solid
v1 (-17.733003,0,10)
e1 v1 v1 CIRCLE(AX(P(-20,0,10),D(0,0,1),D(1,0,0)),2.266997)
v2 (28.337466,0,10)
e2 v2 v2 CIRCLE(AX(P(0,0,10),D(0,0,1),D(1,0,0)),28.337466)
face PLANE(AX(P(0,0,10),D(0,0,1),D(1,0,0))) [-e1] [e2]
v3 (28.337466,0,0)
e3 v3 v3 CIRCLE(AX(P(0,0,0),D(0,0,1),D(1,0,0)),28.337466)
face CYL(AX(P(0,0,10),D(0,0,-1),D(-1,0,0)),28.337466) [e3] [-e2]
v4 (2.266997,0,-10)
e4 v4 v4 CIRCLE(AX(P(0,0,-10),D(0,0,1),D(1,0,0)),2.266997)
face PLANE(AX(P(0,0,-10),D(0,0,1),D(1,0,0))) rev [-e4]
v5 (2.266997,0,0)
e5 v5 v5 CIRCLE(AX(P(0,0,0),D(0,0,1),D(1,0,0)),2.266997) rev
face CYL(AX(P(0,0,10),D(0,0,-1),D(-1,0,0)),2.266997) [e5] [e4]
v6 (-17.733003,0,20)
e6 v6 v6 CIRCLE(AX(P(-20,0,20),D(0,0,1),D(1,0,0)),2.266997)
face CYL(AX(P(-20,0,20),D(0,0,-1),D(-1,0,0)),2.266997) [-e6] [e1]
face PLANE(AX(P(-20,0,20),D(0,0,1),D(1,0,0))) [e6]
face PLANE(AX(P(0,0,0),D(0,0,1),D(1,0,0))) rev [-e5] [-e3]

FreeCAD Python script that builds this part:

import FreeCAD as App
import Part
import Sketcher
from FreeCAD import Vector
Q = App.Units.Quantity

doc = App.newDocument("Part")
body = doc.addObject("PartDesign::Body", "Body")

sketch1 = doc.addObject("Sketcher::SketchObject", "Sketch")
body.addObject(sketch1)
sketch1.AttachmentSupport = (doc.XY_Plane, [""])
sketch1.MapMode = "FlatFace"
sketch1.addGeometry([
    Part.Circle(Vector(0, 0, 0), Vector(0, 0, 1), 28.3),
    Part.Circle(Vector(-20, 0, 0), Vector(0, 0, 1), 2.3),
    Part.Circle(Vector(0, 0, 0), Vector(0, 0, 1), 2.3),
], False)
sketch1.addConstraint([
    Sketcher.Constraint("Coincident", 0, 3, -1, 1),
    Sketcher.Constraint("Coincident", 2, 3, -1, 1),
    Sketcher.Constraint("Equal", 1, 2),
    Sketcher.Constraint("PointOnObject", 1, 3, -1),
    Sketcher.Constraint("DistanceX", 1, 3, -1, 1, Q("20 mm")),
    Sketcher.Constraint("Diameter", 0, Q("56.674932 mm")),
    Sketcher.Constraint("Diameter", 1, Q("4.533995 mm")),
])
pad1 = doc.addObject("PartDesign::Pad", "Pad")
body.addObject(pad1)
pad1.Profile = sketch1
pad1.Length = 10

sketch2 = doc.addObject("Sketcher::SketchObject", "Sketch001")
body.addObject(sketch2)
sketch2.AttachmentSupport = (doc.XY_Plane, [""])
sketch2.MapMode = "FlatFace"
sketch2.addGeometry(Part.Circle(Vector(0, 0, 0), Vector(0, 0, 1), 2.3), False)
sketch2.addConstraint([
    Sketcher.Constraint("Coincident", 0, 3, -1, 1),
    Sketcher.Constraint("Diameter", 0, Q("4.533995 mm")),
])
pad2 = doc.addObject("PartDesign::Pad", "Pad001")
body.addObject(pad2)
pad2.Profile = sketch2
pad2.Length = 20
pad2.Midplane = True

sketch3 = doc.addObject("Sketcher::SketchObject", "Sketch002")
body.addObject(sketch3)
sketch3.AttachmentSupport = (doc.XY_Plane, [""])
sketch3.MapMode = "FlatFace"
sketch3.addGeometry(Part.Circle(Vector(-20, 0, 0), Vector(0, 0, 1), 2.3), False)
sketch3.addConstraint([
    Sketcher.Constraint("PointOnObject", 0, 3, -1),
    Sketcher.Constraint("DistanceX", 0, 3, -1, 1, Q("20 mm")),
    Sketcher.Constraint("Diameter", 0, Q("4.533995 mm")),
])
pad3 = doc.addObject("PartDesign::Pad", "Pad002")
body.addObject(pad3)
pad3.Profile = sketch3
pad3.Length = 20

doc.recompute()
